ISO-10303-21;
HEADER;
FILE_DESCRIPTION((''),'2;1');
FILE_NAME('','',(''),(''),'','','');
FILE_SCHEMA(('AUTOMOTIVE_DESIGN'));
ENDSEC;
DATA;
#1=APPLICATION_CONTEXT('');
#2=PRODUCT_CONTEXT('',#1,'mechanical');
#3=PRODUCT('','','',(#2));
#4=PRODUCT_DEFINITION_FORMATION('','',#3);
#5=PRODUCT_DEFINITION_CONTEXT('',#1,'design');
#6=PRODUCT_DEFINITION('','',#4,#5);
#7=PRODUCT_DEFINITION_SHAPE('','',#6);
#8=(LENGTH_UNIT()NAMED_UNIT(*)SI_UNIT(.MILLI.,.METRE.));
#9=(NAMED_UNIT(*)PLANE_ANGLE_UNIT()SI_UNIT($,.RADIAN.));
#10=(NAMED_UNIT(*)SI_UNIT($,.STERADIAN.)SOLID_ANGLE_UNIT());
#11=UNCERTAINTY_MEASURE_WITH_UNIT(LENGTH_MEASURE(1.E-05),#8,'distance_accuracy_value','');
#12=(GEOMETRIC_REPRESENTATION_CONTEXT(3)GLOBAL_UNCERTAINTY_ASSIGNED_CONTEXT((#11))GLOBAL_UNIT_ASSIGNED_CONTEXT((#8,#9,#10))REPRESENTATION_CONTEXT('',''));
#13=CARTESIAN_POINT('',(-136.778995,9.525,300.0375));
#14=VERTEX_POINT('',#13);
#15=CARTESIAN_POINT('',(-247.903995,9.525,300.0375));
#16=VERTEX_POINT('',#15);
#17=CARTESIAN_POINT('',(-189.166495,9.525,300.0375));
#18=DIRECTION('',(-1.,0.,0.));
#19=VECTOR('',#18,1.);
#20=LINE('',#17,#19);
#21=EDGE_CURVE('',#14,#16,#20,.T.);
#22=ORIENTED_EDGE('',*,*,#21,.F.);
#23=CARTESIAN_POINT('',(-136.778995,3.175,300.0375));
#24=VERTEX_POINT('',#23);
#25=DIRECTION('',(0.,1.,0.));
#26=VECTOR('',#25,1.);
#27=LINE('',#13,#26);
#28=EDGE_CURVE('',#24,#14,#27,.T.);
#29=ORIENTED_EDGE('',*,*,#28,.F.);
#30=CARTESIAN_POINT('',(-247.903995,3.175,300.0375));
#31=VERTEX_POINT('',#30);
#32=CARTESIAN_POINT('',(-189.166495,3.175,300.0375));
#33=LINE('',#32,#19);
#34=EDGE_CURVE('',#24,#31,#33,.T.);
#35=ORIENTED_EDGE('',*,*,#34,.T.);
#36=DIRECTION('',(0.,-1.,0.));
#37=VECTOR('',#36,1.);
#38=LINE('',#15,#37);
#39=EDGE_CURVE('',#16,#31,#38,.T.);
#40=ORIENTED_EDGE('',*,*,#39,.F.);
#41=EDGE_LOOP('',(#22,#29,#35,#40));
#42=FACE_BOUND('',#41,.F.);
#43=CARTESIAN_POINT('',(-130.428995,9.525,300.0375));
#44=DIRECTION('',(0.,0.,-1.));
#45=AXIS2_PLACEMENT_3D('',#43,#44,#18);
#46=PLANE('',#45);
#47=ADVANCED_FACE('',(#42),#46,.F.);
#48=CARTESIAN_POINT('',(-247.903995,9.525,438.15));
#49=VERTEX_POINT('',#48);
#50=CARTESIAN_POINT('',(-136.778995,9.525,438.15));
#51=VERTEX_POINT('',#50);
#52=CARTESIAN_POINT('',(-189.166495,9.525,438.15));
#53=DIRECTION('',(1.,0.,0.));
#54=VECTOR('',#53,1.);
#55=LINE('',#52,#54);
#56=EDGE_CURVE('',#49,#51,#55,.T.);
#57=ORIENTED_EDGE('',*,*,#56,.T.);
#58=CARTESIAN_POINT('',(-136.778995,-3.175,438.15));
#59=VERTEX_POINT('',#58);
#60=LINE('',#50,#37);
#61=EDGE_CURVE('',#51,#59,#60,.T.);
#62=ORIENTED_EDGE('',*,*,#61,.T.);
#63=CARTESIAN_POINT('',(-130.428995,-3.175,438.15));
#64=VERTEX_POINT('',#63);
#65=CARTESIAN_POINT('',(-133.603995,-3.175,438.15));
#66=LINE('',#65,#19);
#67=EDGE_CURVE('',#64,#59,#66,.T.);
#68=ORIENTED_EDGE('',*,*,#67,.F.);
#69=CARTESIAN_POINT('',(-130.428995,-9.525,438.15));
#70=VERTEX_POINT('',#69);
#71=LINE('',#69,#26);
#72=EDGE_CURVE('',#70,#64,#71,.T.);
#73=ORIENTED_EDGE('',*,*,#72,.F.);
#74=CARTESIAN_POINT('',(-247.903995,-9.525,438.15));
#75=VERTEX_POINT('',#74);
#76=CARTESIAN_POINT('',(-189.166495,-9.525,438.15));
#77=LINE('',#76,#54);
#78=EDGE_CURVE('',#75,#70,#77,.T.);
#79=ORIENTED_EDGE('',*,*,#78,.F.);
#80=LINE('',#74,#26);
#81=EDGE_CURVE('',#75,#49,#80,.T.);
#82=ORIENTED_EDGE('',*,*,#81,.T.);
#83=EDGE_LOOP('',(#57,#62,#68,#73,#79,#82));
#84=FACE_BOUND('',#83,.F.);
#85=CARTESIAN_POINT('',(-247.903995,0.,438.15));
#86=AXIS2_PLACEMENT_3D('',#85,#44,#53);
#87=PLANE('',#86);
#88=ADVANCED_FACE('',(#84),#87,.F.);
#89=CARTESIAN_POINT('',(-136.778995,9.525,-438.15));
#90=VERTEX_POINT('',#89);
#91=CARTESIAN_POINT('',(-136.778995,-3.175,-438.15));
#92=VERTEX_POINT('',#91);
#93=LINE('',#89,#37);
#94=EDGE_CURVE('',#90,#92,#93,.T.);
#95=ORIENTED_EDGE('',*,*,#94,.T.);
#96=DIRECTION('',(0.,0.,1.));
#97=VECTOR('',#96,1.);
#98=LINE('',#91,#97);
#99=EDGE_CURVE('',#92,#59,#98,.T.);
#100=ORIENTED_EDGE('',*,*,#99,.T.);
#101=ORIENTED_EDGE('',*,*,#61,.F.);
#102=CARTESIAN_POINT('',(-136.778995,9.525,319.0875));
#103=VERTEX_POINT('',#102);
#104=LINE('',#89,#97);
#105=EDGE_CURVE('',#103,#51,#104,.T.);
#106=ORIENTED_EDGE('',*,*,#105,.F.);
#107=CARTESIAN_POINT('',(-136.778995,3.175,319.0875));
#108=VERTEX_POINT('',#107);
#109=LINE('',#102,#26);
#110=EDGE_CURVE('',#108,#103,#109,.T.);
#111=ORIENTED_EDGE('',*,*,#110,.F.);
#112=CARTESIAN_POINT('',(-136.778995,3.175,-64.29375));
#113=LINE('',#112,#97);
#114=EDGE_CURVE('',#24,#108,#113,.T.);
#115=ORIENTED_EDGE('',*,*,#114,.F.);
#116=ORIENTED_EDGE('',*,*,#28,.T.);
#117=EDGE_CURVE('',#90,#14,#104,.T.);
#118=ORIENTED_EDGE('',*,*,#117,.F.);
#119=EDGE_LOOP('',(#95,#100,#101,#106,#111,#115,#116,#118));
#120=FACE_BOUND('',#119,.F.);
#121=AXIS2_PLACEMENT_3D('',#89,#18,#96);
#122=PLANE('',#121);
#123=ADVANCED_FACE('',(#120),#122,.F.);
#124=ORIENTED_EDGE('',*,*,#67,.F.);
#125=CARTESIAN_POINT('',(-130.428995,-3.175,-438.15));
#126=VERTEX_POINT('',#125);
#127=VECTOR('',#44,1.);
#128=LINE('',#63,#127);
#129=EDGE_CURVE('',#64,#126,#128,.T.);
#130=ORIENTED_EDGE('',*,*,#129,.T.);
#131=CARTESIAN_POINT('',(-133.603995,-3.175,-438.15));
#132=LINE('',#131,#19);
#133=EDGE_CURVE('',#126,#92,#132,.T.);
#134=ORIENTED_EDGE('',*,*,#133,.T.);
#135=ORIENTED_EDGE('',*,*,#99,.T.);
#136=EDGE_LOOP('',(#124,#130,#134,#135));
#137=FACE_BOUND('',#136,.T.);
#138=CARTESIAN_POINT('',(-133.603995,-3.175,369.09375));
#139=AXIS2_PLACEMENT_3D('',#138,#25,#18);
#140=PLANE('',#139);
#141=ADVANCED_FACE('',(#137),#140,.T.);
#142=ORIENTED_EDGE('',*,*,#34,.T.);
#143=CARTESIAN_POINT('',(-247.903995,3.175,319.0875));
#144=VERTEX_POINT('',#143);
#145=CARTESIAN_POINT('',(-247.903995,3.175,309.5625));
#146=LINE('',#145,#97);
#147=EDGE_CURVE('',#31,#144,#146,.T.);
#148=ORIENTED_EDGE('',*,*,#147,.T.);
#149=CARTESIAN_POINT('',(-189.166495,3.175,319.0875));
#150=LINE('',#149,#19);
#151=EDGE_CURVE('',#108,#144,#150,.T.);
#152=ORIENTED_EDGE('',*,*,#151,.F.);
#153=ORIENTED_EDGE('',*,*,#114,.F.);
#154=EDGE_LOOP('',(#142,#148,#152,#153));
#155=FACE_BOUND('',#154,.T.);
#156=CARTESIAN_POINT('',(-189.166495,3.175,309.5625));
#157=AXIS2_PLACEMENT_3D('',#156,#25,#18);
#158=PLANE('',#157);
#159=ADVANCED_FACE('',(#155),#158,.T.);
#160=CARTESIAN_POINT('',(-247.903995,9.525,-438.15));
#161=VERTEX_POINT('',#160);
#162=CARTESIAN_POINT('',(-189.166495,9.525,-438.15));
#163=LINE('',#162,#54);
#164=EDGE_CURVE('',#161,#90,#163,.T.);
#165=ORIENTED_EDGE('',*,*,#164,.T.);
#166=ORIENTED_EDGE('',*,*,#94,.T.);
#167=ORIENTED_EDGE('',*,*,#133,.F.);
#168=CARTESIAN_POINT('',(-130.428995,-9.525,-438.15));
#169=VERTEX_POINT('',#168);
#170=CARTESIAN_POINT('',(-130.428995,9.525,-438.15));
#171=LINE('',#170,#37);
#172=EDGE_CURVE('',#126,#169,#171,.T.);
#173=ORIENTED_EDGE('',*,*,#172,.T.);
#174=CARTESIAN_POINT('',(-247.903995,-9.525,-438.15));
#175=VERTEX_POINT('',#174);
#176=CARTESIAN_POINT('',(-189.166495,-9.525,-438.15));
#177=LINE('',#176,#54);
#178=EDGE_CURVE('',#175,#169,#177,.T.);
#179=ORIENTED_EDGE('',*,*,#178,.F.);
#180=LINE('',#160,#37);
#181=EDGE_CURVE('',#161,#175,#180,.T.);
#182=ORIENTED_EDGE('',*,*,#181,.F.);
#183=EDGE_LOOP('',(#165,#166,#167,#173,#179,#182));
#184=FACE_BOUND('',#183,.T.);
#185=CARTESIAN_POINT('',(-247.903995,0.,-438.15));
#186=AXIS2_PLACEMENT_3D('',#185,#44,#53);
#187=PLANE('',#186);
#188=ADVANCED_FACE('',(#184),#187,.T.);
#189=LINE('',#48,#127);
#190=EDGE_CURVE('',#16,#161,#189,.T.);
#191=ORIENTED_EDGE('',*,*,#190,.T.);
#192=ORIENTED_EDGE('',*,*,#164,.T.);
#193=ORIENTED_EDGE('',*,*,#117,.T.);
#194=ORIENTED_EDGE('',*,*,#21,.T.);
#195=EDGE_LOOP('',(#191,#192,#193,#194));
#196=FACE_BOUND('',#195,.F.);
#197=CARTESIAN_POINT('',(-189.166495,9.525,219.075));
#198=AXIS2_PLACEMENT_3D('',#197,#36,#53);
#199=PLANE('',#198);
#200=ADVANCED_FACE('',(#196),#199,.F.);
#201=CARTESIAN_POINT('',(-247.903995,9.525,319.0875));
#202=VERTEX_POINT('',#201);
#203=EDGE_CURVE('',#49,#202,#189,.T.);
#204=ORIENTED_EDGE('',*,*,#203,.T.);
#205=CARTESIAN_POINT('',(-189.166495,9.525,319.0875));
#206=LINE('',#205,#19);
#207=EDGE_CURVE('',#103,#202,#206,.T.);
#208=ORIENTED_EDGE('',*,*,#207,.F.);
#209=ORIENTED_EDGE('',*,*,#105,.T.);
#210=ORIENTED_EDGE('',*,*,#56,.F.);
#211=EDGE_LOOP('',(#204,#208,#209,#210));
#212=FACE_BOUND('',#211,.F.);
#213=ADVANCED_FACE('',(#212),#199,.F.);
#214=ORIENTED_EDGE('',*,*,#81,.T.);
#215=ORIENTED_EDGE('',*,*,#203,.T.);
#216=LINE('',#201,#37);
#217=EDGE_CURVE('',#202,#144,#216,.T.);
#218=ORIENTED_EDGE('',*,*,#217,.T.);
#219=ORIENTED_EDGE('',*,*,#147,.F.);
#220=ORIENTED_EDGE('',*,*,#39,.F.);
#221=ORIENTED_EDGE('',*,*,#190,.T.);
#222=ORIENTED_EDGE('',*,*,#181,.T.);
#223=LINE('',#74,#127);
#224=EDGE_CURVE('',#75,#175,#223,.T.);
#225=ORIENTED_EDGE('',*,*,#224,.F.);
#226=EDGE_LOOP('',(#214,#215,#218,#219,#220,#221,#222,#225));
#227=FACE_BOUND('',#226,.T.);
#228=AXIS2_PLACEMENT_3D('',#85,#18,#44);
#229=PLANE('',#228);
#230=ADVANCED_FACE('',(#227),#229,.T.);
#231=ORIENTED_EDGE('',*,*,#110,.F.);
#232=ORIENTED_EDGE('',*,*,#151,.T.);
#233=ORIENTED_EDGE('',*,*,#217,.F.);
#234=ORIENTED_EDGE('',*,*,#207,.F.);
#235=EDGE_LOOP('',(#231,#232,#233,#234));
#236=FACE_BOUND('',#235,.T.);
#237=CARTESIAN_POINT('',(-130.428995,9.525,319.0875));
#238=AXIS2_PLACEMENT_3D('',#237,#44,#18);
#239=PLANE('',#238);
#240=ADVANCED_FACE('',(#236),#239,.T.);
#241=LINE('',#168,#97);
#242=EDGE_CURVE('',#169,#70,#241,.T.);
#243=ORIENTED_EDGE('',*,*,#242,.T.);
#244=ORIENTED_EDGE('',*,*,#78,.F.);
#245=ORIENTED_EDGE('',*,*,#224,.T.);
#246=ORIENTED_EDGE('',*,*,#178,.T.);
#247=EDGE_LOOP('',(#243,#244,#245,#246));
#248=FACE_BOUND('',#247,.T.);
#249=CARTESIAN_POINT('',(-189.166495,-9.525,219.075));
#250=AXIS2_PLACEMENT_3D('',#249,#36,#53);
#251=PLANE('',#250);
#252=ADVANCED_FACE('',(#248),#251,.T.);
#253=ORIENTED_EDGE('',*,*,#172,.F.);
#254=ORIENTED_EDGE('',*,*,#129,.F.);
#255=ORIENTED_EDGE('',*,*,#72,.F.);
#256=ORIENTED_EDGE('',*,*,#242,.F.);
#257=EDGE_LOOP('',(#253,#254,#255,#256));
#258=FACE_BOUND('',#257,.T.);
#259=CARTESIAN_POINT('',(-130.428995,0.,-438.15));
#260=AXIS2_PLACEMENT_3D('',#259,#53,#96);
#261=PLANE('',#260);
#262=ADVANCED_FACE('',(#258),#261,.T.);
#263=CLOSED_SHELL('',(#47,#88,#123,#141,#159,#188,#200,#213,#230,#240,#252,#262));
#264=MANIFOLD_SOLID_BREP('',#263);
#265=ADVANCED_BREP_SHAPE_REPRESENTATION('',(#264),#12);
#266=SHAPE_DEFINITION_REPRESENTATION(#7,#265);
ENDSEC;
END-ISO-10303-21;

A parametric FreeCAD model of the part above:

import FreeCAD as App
import Part
import Sketcher

V = App.Vector
Q = App.Units.Quantity

doc = App.newDocument("Part")
body = doc.addObject("PartDesign::Body", "Body")

sketch1 = doc.addObject("Sketcher::SketchObject", "Sketch")
body.addObject(sketch1)
sketch1.AttachmentSupport = (doc.XZ_Plane, [""])
sketch1.MapMode = "FlatFace"
sketch1.addGeometry([
    Part.LineSegment(V(-248, 438, 0), V(-248, -438, 0)),
    Part.LineSegment(V(-248, -438, 0), V(-130, -438, 0)),
    Part.LineSegment(V(-130, -438, 0), V(-130, 438, 0)),
    Part.LineSegment(V(-130, 438, 0), V(-248, 438, 0)),
], False)
sketch1.addConstraint([
    Sketcher.Constraint("Coincident", 0, 2, 1, 1),
    Sketcher.Constraint("Coincident", 1, 2, 2, 1),
    Sketcher.Constraint("Coincident", 2, 2, 3, 1),
    Sketcher.Constraint("Coincident", 3, 2, 0, 1),
    Sketcher.Constraint("Vertical", 0),
    Sketcher.Constraint("Horizontal", 1),
    Sketcher.Constraint("Vertical", 2),
    Sketcher.Constraint("Horizontal", 3),
    Sketcher.Constraint("DistanceY", 0, 2, 0, 1, Q("34.5 in")),
    Sketcher.Constraint("DistanceX", 1, 1, 1, 2, Q("4.625 in")),
    Sketcher.Constraint("DistanceX", 0, 2, -1, 1, Q("9.7599998 in")),
    Sketcher.Constraint("DistanceY", 0, 2, -1, 1, Q("17.25 in")),
])
pad1 = doc.addObject("PartDesign::Pad", "Pad")
body.addObject(pad1)
pad1.Profile = sketch1
pad1.Length = Q("0.75 in")
pad1.Midplane = True

sketch2 = doc.addObject("Sketcher::SketchObject", "Sketch001")
body.addObject(sketch2)
sketch2.AttachmentSupport = (doc.XZ_Plane, [""])
sketch2.MapMode = "FlatFace"
sketch2.AttachmentOffset = App.Placement(V(0, 0, -0.375 * 25.4), App.Rotation())
sketch2.addGeometry([
    Part.LineSegment(V(-130, 319, 0), V(-130, 300, 0)),
    Part.LineSegment(V(-130, 300, 0), V(-248, 300, 0)),
    Part.LineSegment(V(-248, 300, 0), V(-248, 319, 0)),
    Part.LineSegment(V(-248, 319, 0), V(-130, 319, 0)),
], False)
sketch2.addConstraint([
    Sketcher.Constraint("Coincident", 0, 2, 1, 1),
    Sketcher.Constraint("Coincident", 1, 2, 2, 1),
    Sketcher.Constraint("Coincident", 2, 2, 3, 1),
    Sketcher.Constraint("Coincident", 3, 2, 0, 1),
    Sketcher.Constraint("Vertical", 0),
    Sketcher.Constraint("Horizontal", 1),
    Sketcher.Constraint("Vertical", 2),
    Sketcher.Constraint("Horizontal", 3),
    Sketcher.Constraint("DistanceY", 0, 2, 0, 1, Q("0.75 in")),
    Sketcher.Constraint("DistanceX", 1, 2, 1, 1, Q("4.625 in")),
    Sketcher.Constraint("DistanceX", 1, 2, -1, 1, Q("9.7599998 in")),
    Sketcher.Constraint("DistanceY", -1, 1, 0, 2, Q("11.8125 in")),
])
pocket1 = doc.addObject("PartDesign::Pocket", "Pocket")
body.addObject(pocket1)
pocket1.Profile = sketch2
pocket1.Length = Q("0.25 in")
pocket1.Reversed = True

sketch3 = doc.addObject("Sketcher::SketchObject", "Sketch002")
body.addObject(sketch3)
sketch3.AttachmentSupport = (doc.XZ_Plane, [""])
sketch3.MapMode = "FlatFace"
sketch3.AttachmentOffset = App.Placement(V(0, 0, -0.375 * 25.4), App.Rotation())
sketch3.addGeometry([
    Part.LineSegment(V(-130, 438, 0), V(-130, -438, 0)),
    Part.LineSegment(V(-130, -438, 0), V(-137, -438, 0)),
    Part.LineSegment(V(-137, -438, 0), V(-137, 438, 0)),
    Part.LineSegment(V(-137, 438, 0), V(-130, 438, 0)),
], False)
sketch3.addConstraint([
    Sketcher.Constraint("Coincident", 0, 2, 1, 1),
    Sketcher.Constraint("Coincident", 1, 2, 2, 1),
    Sketcher.Constraint("Coincident", 2, 2, 3, 1),
    Sketcher.Constraint("Coincident", 3, 2, 0, 1),
    Sketcher.Constraint("Vertical", 0),
    Sketcher.Constraint("Horizontal", 1),
    Sketcher.Constraint("Vertical", 2),
    Sketcher.Constraint("Horizontal", 3),
    Sketcher.Constraint("DistanceY", 0, 2, 0, 1, Q("34.5 in")),
    Sketcher.Constraint("DistanceX", 1, 2, 1, 1, Q("0.25 in")),
    Sketcher.Constraint("DistanceY", 0, 2, -1, 1, Q("17.25 in")),
    Sketcher.Constraint("DistanceX", 0, 2, -1, 1, Q("5.1349998 in")),
])
pocket2 = doc.addObject("PartDesign::Pocket", "Pocket001")
body.addObject(pocket2)
pocket2.Profile = sketch3
pocket2.Length = Q("0.5 in")
pocket2.Reversed = True

doc.recompute()
